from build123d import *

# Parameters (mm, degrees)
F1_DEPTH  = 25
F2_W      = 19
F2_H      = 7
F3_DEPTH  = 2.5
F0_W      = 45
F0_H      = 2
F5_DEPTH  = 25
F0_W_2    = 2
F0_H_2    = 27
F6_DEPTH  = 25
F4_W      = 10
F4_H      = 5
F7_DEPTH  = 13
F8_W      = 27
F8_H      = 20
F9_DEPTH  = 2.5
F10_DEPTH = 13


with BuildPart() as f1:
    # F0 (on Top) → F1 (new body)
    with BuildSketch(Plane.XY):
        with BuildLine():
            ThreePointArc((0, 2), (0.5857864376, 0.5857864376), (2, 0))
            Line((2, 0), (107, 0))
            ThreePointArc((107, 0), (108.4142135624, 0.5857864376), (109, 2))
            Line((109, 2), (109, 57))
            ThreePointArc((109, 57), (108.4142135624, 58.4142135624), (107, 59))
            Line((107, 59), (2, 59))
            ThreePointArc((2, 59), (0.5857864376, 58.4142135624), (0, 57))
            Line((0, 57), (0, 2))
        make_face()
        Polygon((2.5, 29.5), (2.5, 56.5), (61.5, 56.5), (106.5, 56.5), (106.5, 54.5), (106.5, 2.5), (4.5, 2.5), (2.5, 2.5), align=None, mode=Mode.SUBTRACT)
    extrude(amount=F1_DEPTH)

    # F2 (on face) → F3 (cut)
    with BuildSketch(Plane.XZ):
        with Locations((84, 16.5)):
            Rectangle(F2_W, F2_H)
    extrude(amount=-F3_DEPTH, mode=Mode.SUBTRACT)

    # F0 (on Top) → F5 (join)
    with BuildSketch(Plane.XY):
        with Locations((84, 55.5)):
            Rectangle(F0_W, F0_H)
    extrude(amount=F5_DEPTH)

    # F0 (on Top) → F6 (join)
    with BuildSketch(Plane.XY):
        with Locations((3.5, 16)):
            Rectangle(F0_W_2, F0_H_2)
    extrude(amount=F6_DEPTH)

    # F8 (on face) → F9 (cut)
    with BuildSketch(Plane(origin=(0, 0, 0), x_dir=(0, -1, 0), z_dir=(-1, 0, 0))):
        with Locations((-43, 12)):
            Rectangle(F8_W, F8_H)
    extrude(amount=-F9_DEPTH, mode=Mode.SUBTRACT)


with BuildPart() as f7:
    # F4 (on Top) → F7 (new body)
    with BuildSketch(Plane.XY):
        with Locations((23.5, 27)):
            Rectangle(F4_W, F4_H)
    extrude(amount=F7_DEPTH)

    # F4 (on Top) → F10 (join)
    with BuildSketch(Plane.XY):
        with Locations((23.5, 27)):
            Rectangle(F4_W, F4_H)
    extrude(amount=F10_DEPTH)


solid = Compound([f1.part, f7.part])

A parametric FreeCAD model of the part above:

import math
import FreeCAD as App
import Part
import Sketcher

doc = App.newDocument("Part")
params = doc.addObject("Spreadsheet::Sheet", "Params")
for row, (alias, value) in enumerate([
    ("sketch1_radius", "2 mm"),
    ("sketch1_width", "105 mm"),
    ("sketch1_width2", "104 mm"),
    ("sketch1_height", "55 mm"),
    ("sketch1_height2", "54 mm"),
    ("pad1_length", "25 mm"),
    ("sketch2_width", "19 mm"),
    ("sketch2_height", "7 mm"),
    ("pocket1_length", "2.5 mm"),
    ("sketch3_width", "45 mm"),
    ("sketch3_height", "2 mm"),
    ("pad2_length", "25 mm"),
    ("sketch4_width", "2 mm"),
    ("sketch4_height", "27 mm"),
    ("pad3_length", "25 mm"),
    ("sketch5_width", "27 mm"),
    ("sketch5_height", "20 mm"),
    ("pocket2_length", "2.5 mm"),
    ("sketch6_width", "10 mm"),
    ("sketch6_height", "5 mm"),
    ("pad4_length", "13 mm"),
    ("sketch7_width", "10 mm"),
    ("sketch7_height", "5 mm"),
    ("pad5_length", "13 mm"),
], start=1):
    params.set(f"A{row}", alias)
    params.set(f"B{row}", "=" + value)
    params.setAlias(f"B{row}", alias)

body = doc.addObject("PartDesign::Body", "Body")

sketch1 = body.newObject("Sketcher::SketchObject", "Sketch")
sketch1.AttachmentSupport = (doc.getObject("XY_Plane"), [""])
sketch1.MapMode = "FlatFace"
sketch1.addGeometry([
    Part.ArcOfCircle(Part.Circle(App.Vector(2, 2, 0), App.Vector(0, 0, 1), 2), math.radians(180), math.radians(270)),
    Part.LineSegment(App.Vector(2, 0, 0), App.Vector(107, 0, 0)),
    Part.ArcOfCircle(Part.Circle(App.Vector(107, 2, 0), App.Vector(0, 0, 1), 2), math.radians(-90), math.radians(0)),
    Part.LineSegment(App.Vector(109, 2, 0), App.Vector(109, 57, 0)),
    Part.ArcOfCircle(Part.Circle(App.Vector(107, 57, 0), App.Vector(0, 0, 1), 2), math.radians(0), math.radians(90)),
    Part.LineSegment(App.Vector(107, 59, 0), App.Vector(2, 59, 0)),
    Part.ArcOfCircle(Part.Circle(App.Vector(2, 57, 0), App.Vector(0, 0, 1), 2), math.radians(90), math.radians(180)),
    Part.LineSegment(App.Vector(0, 57, 0), App.Vector(0, 2, 0)),
    Part.LineSegment(App.Vector(2.5, 2.5, 0), App.Vector(2.5, 56.5, 0)),
    Part.LineSegment(App.Vector(2.5, 56.5, 0), App.Vector(106.5, 56.5, 0)),
    Part.LineSegment(App.Vector(106.5, 56.5, 0), App.Vector(106.5, 2.5, 0)),
    Part.LineSegment(App.Vector(106.5, 2.5, 0), App.Vector(2.5, 2.5, 0)),
], False)
sketch1.addConstraint([
    Sketcher.Constraint("Tangent", 0, 2, 1, 1),
    Sketcher.Constraint("Tangent", 1, 2, 2, 1),
    Sketcher.Constraint("Tangent", 2, 2, 3, 1),
    Sketcher.Constraint("Tangent", 3, 2, 4, 1),
    Sketcher.Constraint("Tangent", 4, 2, 5, 1),
    Sketcher.Constraint("Tangent", 5, 2, 6, 1),
    Sketcher.Constraint("Tangent", 6, 2, 7, 1),
    Sketcher.Constraint("Tangent", 7, 2, 0, 1),
    Sketcher.Constraint("Coincident", 8, 2, 9, 1),
    Sketcher.Constraint("Coincident", 9, 2, 10, 1),
    Sketcher.Constraint("Coincident", 10, 2, 11, 1),
    Sketcher.Constraint("Coincident", 11, 2, 8, 1),
    Sketcher.Constraint("Horizontal", 1),
    Sketcher.Constraint("Vertical", 3),
    Sketcher.Constraint("Horizontal", 5),
    Sketcher.Constraint("Vertical", 7),
    Sketcher.Constraint("Vertical", 8),
    Sketcher.Constraint("Horizontal", 9),
    Sketcher.Constraint("Vertical", 10),
    Sketcher.Constraint("Horizontal", 11),
    Sketcher.Constraint("Equal", 0, 2),
    Sketcher.Constraint("Equal", 2, 4),
    Sketcher.Constraint("Equal", 4, 6),
    Sketcher.Constraint("PointOnObject", 0, 2, -1),
    Sketcher.Constraint("PointOnObject", 6, 2, -2),
    Sketcher.Constraint("Radius", 0, 2.0),
    Sketcher.Constraint("DistanceX", 1, 1, 1, 2, 105.0),
    Sketcher.Constraint("DistanceX", 9, 1, 9, 2, 104.0),
    Sketcher.Constraint("DistanceY", 3, 1, 3, 2, 55.0),
    Sketcher.Constraint("DistanceY", 8, 1, 8, 2, 54.0),
    Sketcher.Constraint("DistanceX", -1, 1, 8, 2, 2.5),
    Sketcher.Constraint("DistanceY", -1, 1, 8, 2, 56.5),
])
sketch1.setExpression("Constraints[25]", "Params.sketch1_radius")
sketch1.setExpression("Constraints[26]", "Params.sketch1_width")
sketch1.setExpression("Constraints[27]", "Params.sketch1_width2")
sketch1.setExpression("Constraints[28]", "Params.sketch1_height")
sketch1.setExpression("Constraints[29]", "Params.sketch1_height2")
pad1 = body.newObject("PartDesign::Pad", "Pad")
pad1.Profile = sketch1
pad1.setExpression("Length", "Params.pad1_length")

sketch2 = body.newObject("Sketcher::SketchObject", "Sketch001")
sketch2.AttachmentSupport = (doc.getObject("XZ_Plane"), [""])
sketch2.MapMode = "FlatFace"
sketch2.addGeometry([
    Part.LineSegment(App.Vector(74.5, 20, 0), App.Vector(74.5, 13, 0)),
    Part.LineSegment(App.Vector(74.5, 13, 0), App.Vector(93.5, 13, 0)),
    Part.LineSegment(App.Vector(93.5, 13, 0), App.Vector(93.5, 20, 0)),
    Part.LineSegment(App.Vector(93.5, 20, 0), App.Vector(74.5, 20, 0)),
], False)
sketch2.addConstraint([
    Sketcher.Constraint("Coincident", 0, 2, 1, 1),
    Sketcher.Constraint("Coincident", 1, 2, 2, 1),
    Sketcher.Constraint("Coincident", 2, 2, 3, 1),
    Sketcher.Constraint("Coincident", 3, 2, 0, 1),
    Sketcher.Constraint("Vertical", 0),
    Sketcher.Constraint("Horizontal", 1),
    Sketcher.Constraint("Vertical", 2),
    Sketcher.Constraint("Horizontal", 3),
    Sketcher.Constraint("DistanceX", 1, 1, 1, 2, 19.0),
    Sketcher.Constraint("DistanceY", 0, 2, 0, 1, 7.0),
    Sketcher.Constraint("DistanceY", -1, 1, 0, 2, 13.0),
    Sketcher.Constraint("DistanceX", -1, 1, 0, 2, 74.5),
])
sketch2.setExpression("Constraints[8]", "Params.sketch2_width")
sketch2.setExpression("Constraints[9]", "Params.sketch2_height")
pocket1 = body.newObject("PartDesign::Pocket", "Pocket")
pocket1.Profile = sketch2
pocket1.setExpression("Length", "Params.pocket1_length")

sketch3 = body.newObject("Sketcher::SketchObject", "Sketch002")
sketch3.AttachmentSupport = (doc.getObject("XY_Plane"), [""])
sketch3.MapMode = "FlatFace"
sketch3.addGeometry([
    Part.LineSegment(App.Vector(61.5, 56.5, 0), App.Vector(61.5, 54.5, 0)),
    Part.LineSegment(App.Vector(61.5, 54.5, 0), App.Vector(106.5, 54.5, 0)),
    Part.LineSegment(App.Vector(106.5, 54.5, 0), App.Vector(106.5, 56.5, 0)),
    Part.LineSegment(App.Vector(106.5, 56.5, 0), App.Vector(61.5, 56.5, 0)),
], False)
sketch3.addConstraint([
    Sketcher.Constraint("Coincident", 0, 2, 1, 1),
    Sketcher.Constraint("Coincident", 1, 2, 2, 1),
    Sketcher.Constraint("Coincident", 2, 2, 3, 1),
    Sketcher.Constraint("Coincident", 3, 2, 0, 1),
    Sketcher.Constraint("Vertical", 0),
    Sketcher.Constraint("Horizontal", 1),
    Sketcher.Constraint("Vertical", 2),
    Sketcher.Constraint("Horizontal", 3),
    Sketcher.Constraint("DistanceX", 1, 1, 1, 2, 45.0),
    Sketcher.Constraint("DistanceY", 0, 2, 0, 1, 2.0),
    Sketcher.Constraint("DistanceX", -1, 1, 0, 2, 61.5),
    Sketcher.Constraint("DistanceY", -1, 1, 0, 2, 54.5),
])
sketch3.setExpression("Constraints[8]", "Params.sketch3_width")
sketch3.setExpression("Constraints[9]", "Params.sketch3_height")
pad2 = body.newObject("PartDesign::Pad", "Pad001")
pad2.Profile = sketch3
pad2.setExpression("Length", "Params.pad2_length")

sketch4 = body.newObject("Sketcher::SketchObject", "Sketch003")
sketch4.AttachmentSupport = (doc.getObject("XY_Plane"), [""])
sketch4.MapMode = "FlatFace"
sketch4.addGeometry([
    Part.LineSegment(App.Vector(2.5, 29.5, 0), App.Vector(2.5, 2.5, 0)),
    Part.LineSegment(App.Vector(2.5, 2.5, 0), App.Vector(4.5, 2.5, 0)),
    Part.LineSegment(App.Vector(4.5, 2.5, 0), App.Vector(4.5, 29.5, 0)),
    Part.LineSegment(App.Vector(4.5, 29.5, 0), App.Vector(2.5, 29.5, 0)),
], False)
sketch4.addConstraint([
    Sketcher.Constraint("Coincident", 0, 2, 1, 1),
    Sketcher.Constraint("Coincident", 1, 2, 2, 1),
    Sketcher.Constraint("Coincident", 2, 2, 3, 1),
    Sketcher.Constraint("Coincident", 3, 2, 0, 1),
    Sketcher.Constraint("Vertical", 0),
    Sketcher.Constraint("Horizontal", 1),
    Sketcher.Constraint("Vertical", 2),
    Sketcher.Constraint("Horizontal", 3),
    Sketcher.Constraint("DistanceX", 1, 1, 1, 2, 2.0),
    Sketcher.Constraint("DistanceY", 0, 2, 0, 1, 27.0),
    Sketcher.Constraint("DistanceX", -1, 1, 0, 2, 2.5),
    Sketcher.Constraint("DistanceY", -1, 1, 0, 2, 2.5),
])
sketch4.setExpression("Constraints[8]", "Params.sketch4_width")
sketch4.setExpression("Constraints[9]", "Params.sketch4_height")
pad3 = body.newObject("PartDesign::Pad", "Pad002")
pad3.Profile = sketch4
pad3.setExpression("Length", "Params.pad3_length")

sketch5 = body.newObject("Sketcher::SketchObject", "Sketch004")
sketch5.AttachmentSupport = (doc.getObject("YZ_Plane"), [""])
sketch5.MapMode = "FlatFace"
sketch5.addGeometry([
    Part.LineSegment(App.Vector(56.5, 22, 0), App.Vector(56.5, 2, 0)),
    Part.LineSegment(App.Vector(56.5, 2, 0), App.Vector(29.5, 2, 0)),
    Part.LineSegment(App.Vector(29.5, 2, 0), App.Vector(29.5, 22, 0)),
    Part.LineSegment(App.Vector(29.5, 22, 0), App.Vector(56.5, 22, 0)),
], False)
sketch5.addConstraint([
    Sketcher.Constraint("Coincident", 0, 2, 1, 1),
    Sketcher.Constraint("Coincident", 1, 2, 2, 1),
    Sketcher.Constraint("Coincident", 2, 2, 3, 1),
    Sketcher.Constraint("Coincident", 3, 2, 0, 1),
    Sketcher.Constraint("Vertical", 0),
    Sketcher.Constraint("Horizontal", 1),
    Sketcher.Constraint("Vertical", 2),
    Sketcher.Constraint("Horizontal", 3),
    Sketcher.Constraint("DistanceX", 1, 2, 1, 1, 27.0),
    Sketcher.Constraint("DistanceY", 0, 2, 0, 1, 20.0),
    Sketcher.Constraint("DistanceY", -1, 1, 0, 2, 2.0),
    Sketcher.Constraint("DistanceX", -1, 1, 0, 2, 56.5),
])
sketch5.setExpression("Constraints[8]", "Params.sketch5_width")
sketch5.setExpression("Constraints[9]", "Params.sketch5_height")
pocket2 = body.newObject("PartDesign::Pocket", "Pocket001")
pocket2.Profile = sketch5
pocket2.setExpression("Length", "Params.pocket2_length")
pocket2.Reversed = True
body2 = doc.addObject("PartDesign::Body", "Body001")

sketch6 = body2.newObject("Sketcher::SketchObject", "Sketch005")
sketch6.AttachmentSupport = (doc.getObject("XY_Plane001"), [""])
sketch6.MapMode = "FlatFace"
sketch6.addGeometry([
    Part.LineSegment(App.Vector(18.5, 29.5, 0), App.Vector(18.5, 24.5, 0)),
    Part.LineSegment(App.Vector(18.5, 24.5, 0), App.Vector(28.5, 24.5, 0)),
    Part.LineSegment(App.Vector(28.5, 24.5, 0), App.Vector(28.5, 29.5, 0)),
    Part.LineSegment(App.Vector(28.5, 29.5, 0), App.Vector(18.5, 29.5, 0)),
], False)
sketch6.addConstraint([
    Sketcher.Constraint("Coincident", 0, 2, 1, 1),
    Sketcher.Constraint("Coincident", 1, 2, 2, 1),
    Sketcher.Constraint("Coincident", 2, 2, 3, 1),
    Sketcher.Constraint("Coincident", 3, 2, 0, 1),
    Sketcher.Constraint("Vertical", 0),
    Sketcher.Constraint("Horizontal", 1),
    Sketcher.Constraint("Vertical", 2),
    Sketcher.Constraint("Horizontal", 3),
    Sketcher.Constraint("DistanceX", 1, 1, 1, 2, 10.0),
    Sketcher.Constraint("DistanceY", 0, 2, 0, 1, 5.0),
    Sketcher.Constraint("DistanceX", -1, 1, 0, 2, 18.5),
    Sketcher.Constraint("DistanceY", -1, 1, 0, 2, 24.5),
])
sketch6.setExpression("Constraints[8]", "Params.sketch6_width")
sketch6.setExpression("Constraints[9]", "Params.sketch6_height")
pad4 = body2.newObject("PartDesign::Pad", "Pad003")
pad4.Profile = sketch6
pad4.setExpression("Length", "Params.pad4_length")

sketch7 = body2.newObject("Sketcher::SketchObject", "Sketch006")
sketch7.AttachmentSupport = (doc.getObject("XY_Plane001"), [""])
sketch7.MapMode = "FlatFace"
sketch7.addGeometry([
    Part.LineSegment(App.Vector(18.5, 29.5, 0), App.Vector(18.5, 24.5, 0)),
    Part.LineSegment(App.Vector(18.5, 24.5, 0), App.Vector(28.5, 24.5, 0)),
    Part.LineSegment(App.Vector(28.5, 24.5, 0), App.Vector(28.5, 29.5, 0)),
    Part.LineSegment(App.Vector(28.5, 29.5, 0), App.Vector(18.5, 29.5, 0)),
], False)
sketch7.addConstraint([
    Sketcher.Constraint("Coincident", 0, 2, 1, 1),
    Sketcher.Constraint("Coincident", 1, 2, 2, 1),
    Sketcher.Constraint("Coincident", 2, 2, 3, 1),
    Sketcher.Constraint("Coincident", 3, 2, 0, 1),
    Sketcher.Constraint("Vertical", 0),
    Sketcher.Constraint("Horizontal", 1),
    Sketcher.Constraint("Vertical", 2),
    Sketcher.Constraint("Horizontal", 3),
    Sketcher.Constraint("DistanceX", 1, 1, 1, 2, 10.0),
    Sketcher.Constraint("DistanceY", 0, 2, 0, 1, 5.0),
    Sketcher.Constraint("DistanceX", -1, 1, 0, 2, 18.5),
    Sketcher.Constraint("DistanceY", -1, 1, 0, 2, 24.5),
])
sketch7.setExpression("Constraints[8]", "Params.sketch7_width")
sketch7.setExpression("Constraints[9]", "Params.sketch7_height")
pad5 = body2.newObject("PartDesign::Pad", "Pad004")
pad5.Profile = sketch7
pad5.setExpression("Length", "Params.pad5_length")

doc.recompute()
